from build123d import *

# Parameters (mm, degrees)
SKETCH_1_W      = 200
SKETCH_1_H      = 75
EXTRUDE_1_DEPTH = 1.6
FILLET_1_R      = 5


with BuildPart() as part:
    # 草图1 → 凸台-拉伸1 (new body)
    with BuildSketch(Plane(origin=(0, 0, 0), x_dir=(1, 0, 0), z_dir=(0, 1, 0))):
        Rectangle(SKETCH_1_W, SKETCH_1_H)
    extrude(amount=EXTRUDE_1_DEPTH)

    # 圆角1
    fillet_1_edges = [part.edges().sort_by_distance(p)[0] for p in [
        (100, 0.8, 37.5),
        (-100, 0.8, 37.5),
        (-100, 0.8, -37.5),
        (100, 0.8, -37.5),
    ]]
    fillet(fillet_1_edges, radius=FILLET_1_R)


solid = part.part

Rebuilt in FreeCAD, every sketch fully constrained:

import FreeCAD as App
import Part
import Sketcher


def edges_at(feature, points):
    """Names of the edges that pass closest to the given points."""
    edges = feature.Shape.Edges
    near = lambda p: min(range(len(edges)), key=lambda i: edges[i].distToShape(Part.Vertex(*p))[0])
    return sorted({f"Edge{near(p) + 1}" for p in points})

doc = App.newDocument("Part")
body = doc.addObject("PartDesign::Body", "Body")

# Sketch on XZ plane
sketch1 = body.newObject("Sketcher::SketchObject", "Sketch")
sketch1.AttachmentSupport = (doc.getObject("XZ_Plane"), [""])
sketch1.MapMode = "FlatFace"
sketch1.addGeometry([
    Part.LineSegment(App.Vector(-100, -38, 0), App.Vector(-100, 38, 0)),
    Part.LineSegment(App.Vector(-100, 38, 0), App.Vector(100, 38, 0)),
    Part.LineSegment(App.Vector(100, 38, 0), App.Vector(100, -38, 0)),
    Part.LineSegment(App.Vector(100, -38, 0), App.Vector(-100, -38, 0)),
], False)
sketch1.addConstraint([
    Sketcher.Constraint("Coincident", 0, 2, 1, 1),
    Sketcher.Constraint("Coincident", 1, 2, 2, 1),
    Sketcher.Constraint("Coincident", 2, 2, 3, 1),
    Sketcher.Constraint("Coincident", 3, 2, 0, 1),
    Sketcher.Constraint("Vertical", 0),
    Sketcher.Constraint("Horizontal", 1),
    Sketcher.Constraint("Vertical", 2),
    Sketcher.Constraint("Horizontal", 3),
    Sketcher.Constraint("Symmetric", 0, 2, 2, 2, -1, 1),
    Sketcher.Constraint("DistanceX", 1, 1, 1, 2, 200.0),
    Sketcher.Constraint("DistanceY", 0, 1, 0, 2, 75.0),
])
pad1 = body.newObject("PartDesign::Pad", "Pad")
pad1.Profile = sketch1
pad1.Length = 1.6
pad1.Reversed = True
doc.recompute()

fillet = body.newObject("PartDesign::Fillet", "Fillet")
fillet.Base = (pad1, edges_at(pad1, [
    (100, 0.8, 37.5),
    (-100, 0.8, 37.5),
    (-100, 0.8, -37.5),
    (100, 0.8, -37.5),
]))
fillet.Radius = 5

doc.recompute()
